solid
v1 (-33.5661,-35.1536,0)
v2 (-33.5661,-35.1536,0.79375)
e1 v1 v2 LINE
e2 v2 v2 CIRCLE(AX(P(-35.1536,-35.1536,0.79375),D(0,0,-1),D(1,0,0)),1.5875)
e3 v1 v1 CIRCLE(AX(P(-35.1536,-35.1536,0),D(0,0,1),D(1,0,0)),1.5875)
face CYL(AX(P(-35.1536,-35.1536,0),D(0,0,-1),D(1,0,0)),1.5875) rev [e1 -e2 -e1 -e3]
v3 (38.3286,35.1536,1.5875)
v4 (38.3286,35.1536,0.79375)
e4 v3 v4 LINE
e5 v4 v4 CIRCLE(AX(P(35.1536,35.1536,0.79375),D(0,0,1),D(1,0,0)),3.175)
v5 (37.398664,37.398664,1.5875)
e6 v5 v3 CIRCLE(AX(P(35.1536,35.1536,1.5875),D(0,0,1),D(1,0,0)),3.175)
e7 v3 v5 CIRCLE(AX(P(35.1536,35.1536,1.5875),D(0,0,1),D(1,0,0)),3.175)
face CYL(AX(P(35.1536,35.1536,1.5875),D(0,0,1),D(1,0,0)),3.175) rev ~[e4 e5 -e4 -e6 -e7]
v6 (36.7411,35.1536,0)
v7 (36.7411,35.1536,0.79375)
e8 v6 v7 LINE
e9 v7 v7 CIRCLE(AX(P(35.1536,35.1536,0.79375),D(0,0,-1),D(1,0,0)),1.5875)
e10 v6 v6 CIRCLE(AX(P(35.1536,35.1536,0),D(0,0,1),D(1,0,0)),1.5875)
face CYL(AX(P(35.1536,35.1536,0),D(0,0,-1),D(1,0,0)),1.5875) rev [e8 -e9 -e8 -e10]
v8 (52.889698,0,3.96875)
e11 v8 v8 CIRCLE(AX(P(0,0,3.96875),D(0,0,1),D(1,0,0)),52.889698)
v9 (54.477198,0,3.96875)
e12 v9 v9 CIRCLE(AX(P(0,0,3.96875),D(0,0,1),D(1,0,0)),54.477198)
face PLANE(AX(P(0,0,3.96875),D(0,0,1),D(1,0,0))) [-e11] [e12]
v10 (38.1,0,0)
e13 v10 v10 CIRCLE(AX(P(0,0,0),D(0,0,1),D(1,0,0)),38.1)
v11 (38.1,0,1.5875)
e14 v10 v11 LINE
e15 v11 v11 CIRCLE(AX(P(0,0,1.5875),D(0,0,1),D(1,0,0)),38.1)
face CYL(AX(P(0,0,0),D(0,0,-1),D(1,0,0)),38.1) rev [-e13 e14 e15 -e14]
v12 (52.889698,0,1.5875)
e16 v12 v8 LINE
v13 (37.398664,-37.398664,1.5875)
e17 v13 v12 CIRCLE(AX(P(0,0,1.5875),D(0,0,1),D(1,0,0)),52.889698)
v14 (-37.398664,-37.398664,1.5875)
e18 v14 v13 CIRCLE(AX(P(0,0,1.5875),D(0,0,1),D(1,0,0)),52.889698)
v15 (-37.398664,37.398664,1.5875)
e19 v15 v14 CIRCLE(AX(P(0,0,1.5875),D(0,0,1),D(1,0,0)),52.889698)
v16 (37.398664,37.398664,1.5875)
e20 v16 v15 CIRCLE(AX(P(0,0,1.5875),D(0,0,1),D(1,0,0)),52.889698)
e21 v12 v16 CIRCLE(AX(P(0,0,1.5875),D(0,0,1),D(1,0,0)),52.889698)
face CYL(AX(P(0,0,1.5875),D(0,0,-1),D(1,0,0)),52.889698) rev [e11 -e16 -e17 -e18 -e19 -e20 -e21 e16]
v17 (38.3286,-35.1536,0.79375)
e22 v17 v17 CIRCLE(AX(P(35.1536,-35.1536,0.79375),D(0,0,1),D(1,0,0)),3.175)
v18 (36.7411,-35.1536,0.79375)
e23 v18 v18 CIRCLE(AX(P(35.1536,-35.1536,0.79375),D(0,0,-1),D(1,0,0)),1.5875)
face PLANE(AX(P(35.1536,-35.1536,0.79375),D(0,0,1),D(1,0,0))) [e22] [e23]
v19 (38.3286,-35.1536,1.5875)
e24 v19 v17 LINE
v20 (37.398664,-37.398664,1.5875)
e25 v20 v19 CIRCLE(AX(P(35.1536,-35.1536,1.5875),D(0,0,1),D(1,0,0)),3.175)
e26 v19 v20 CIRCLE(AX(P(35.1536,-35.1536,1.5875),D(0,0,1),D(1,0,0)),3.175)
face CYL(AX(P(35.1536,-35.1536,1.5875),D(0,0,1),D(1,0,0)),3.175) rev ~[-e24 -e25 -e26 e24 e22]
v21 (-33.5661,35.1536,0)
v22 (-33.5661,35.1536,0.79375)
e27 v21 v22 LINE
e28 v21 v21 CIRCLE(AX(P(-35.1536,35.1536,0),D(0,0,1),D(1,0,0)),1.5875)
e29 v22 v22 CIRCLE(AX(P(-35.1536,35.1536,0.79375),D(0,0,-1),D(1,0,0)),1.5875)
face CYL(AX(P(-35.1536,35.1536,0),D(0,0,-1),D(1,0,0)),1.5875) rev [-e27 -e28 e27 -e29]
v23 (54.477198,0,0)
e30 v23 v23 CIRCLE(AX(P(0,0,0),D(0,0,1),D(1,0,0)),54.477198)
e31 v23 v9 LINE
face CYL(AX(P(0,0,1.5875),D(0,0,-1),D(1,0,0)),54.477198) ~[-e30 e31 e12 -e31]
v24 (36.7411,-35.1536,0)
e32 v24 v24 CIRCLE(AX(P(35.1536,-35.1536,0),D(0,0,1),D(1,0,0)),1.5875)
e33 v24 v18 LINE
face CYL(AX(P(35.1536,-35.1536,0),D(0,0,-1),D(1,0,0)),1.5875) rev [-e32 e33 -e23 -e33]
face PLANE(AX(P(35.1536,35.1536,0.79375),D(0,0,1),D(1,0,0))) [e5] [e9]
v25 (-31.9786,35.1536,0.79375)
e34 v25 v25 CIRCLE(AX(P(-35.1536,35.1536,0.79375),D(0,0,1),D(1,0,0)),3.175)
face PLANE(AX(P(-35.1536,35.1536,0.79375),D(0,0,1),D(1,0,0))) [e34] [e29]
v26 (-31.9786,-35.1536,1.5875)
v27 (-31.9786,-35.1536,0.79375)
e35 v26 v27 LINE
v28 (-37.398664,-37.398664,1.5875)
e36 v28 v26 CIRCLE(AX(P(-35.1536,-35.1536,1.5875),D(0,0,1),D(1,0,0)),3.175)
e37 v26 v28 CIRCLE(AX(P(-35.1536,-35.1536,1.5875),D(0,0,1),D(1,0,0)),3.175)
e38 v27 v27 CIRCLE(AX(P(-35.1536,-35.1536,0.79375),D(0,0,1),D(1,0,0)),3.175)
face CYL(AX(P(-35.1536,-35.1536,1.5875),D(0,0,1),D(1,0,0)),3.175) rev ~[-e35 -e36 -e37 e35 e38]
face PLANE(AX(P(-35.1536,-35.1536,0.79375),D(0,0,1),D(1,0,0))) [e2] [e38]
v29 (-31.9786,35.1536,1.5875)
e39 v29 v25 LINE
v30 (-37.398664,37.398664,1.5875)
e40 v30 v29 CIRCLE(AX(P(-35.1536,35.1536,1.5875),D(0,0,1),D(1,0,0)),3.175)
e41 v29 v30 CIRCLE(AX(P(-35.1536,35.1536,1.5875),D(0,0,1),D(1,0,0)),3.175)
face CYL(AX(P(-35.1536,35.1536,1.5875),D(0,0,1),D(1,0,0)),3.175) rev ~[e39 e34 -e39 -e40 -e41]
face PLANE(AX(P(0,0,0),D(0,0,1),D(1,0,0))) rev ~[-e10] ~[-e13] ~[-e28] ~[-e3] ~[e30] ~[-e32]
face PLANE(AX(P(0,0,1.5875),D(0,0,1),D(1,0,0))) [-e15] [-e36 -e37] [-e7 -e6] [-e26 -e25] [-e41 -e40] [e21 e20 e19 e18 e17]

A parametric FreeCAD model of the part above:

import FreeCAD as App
import Part
import Sketcher
from FreeCAD import Vector
Q = App.Units.Quantity

doc = App.newDocument("Part")
params = doc.addObject("Spreadsheet::Sheet", "Params")
for row, (alias, value) in enumerate([
    ("sketch1_diameter", "3 in"),
    ("sketch1_diameter2", "0.125 in"),
    ("pad1_length", "0.0625 in"),
    ("pad2_length", "0.09375 in"),
    ("sketch3_diameter", "0.25 in"),
    ("pocket1_length", "0.03125 in"),
], start=1):
    params.set(f"A{row}", alias)
    params.set(f"B{row}", "=" + value)
    params.setAlias(f"B{row}", alias)

body = doc.addObject("PartDesign::Body", "Body")

# Sketch on XY plane
sketch1 = body.newObject("Sketcher::SketchObject", "Sketch")
sketch1.AttachmentSupport = (doc.getObject("XY_Plane"), [""])
sketch1.MapMode = "FlatFace"
sketch1.addGeometry(Part.Circle(Vector(0, 0, 0), Vector(0, 0, 1), 54.5), False)
sketch1.addGeometry(Part.Circle(Vector(-35.2, -35.2, 0), Vector(0, 0, 1), 1.6), False)
sketch1.addGeometry(Part.Circle(Vector(35.2, -35.2, 0), Vector(0, 0, 1), 1.6), False)
sketch1.addGeometry(Part.Circle(Vector(-35.2, 35.2, 0), Vector(0, 0, 1), 1.6), False)
sketch1.addGeometry(Part.Circle(Vector(0, 0, 0), Vector(0, 0, 1), 38.1), False)
sketch1.addGeometry(Part.Circle(Vector(35.2, 35.2, 0), Vector(0, 0, 1), 1.6), False)
sketch1.addConstraint(Sketcher.Constraint("Coincident", 0, 3, -1, 1))
sketch1.addConstraint(Sketcher.Constraint("Coincident", 4, 3, -1, 1))
sketch1.addConstraint(Sketcher.Constraint("Equal", 1, 2))
sketch1.addConstraint(Sketcher.Constraint("Equal", 2, 3))
sketch1.addConstraint(Sketcher.Constraint("Equal", 3, 5))
sketch1.addConstraint(Sketcher.Constraint("Symmetric", 2, 3, 3, 3, -1, 1))
sketch1.addConstraint(Sketcher.Constraint("Symmetric", 1, 3, 5, 3, -1, 1))
sketch1.addConstraint(Sketcher.Constraint("Symmetric", 1, 3, 2, 3, -2))
sketch1.addConstraint(Sketcher.Constraint("Diameter", 4, Q("3 in")))
sketch1.addConstraint(Sketcher.Constraint("Diameter", 1, Q("0.125 in")))
sketch1.addConstraint(Sketcher.Constraint("DistanceX", 1, 3, -1, 1, Q("1.384 in")))
sketch1.addConstraint(Sketcher.Constraint("DistanceY", 1, 3, -1, 1, Q("1.384 in")))
sketch1.addConstraint(Sketcher.Constraint("Diameter", 0, Q("108.954396 mm")))
sketch1.setExpression("Constraints[8]", "Params.sketch1_diameter")
sketch1.setExpression("Constraints[9]", "Params.sketch1_diameter2")
pad1 = body.newObject("PartDesign::Pad", "Pad")
pad1.Profile = sketch1
pad1.setExpression("Length", "Params.pad1_length")

# Sketch on XY plane
sketch2 = body.newObject("Sketcher::SketchObject", "Sketch001")
sketch2.AttachmentSupport = (doc.getObject("XY_Plane"), [""])
sketch2.MapMode = "FlatFace"
sketch2.AttachmentOffset = App.Placement(Vector(0, 0, 0.0625 * 25.4), App.Rotation())
sketch2.addGeometry(Part.Circle(Vector(0, 0, 0), Vector(0, 0, 1), 54), False)
sketch2.addGeometry(Part.Circle(Vector(0, 0, 0), Vector(0, 0, 1), 53), False)
sketch2.addConstraint(Sketcher.Constraint("Coincident", 0, 3, -1, 1))
sketch2.addConstraint(Sketcher.Constraint("Coincident", 1, 3, -1, 1))
sketch2.addConstraint(Sketcher.Constraint("Diameter", 0, Q("108.954396 mm")))
sketch2.addConstraint(Sketcher.Constraint("Diameter", 1, Q("105.779396 mm")))
pad2 = body.newObject("PartDesign::Pad", "Pad001")
pad2.Profile = sketch2
pad2.setExpression("Length", "Params.pad2_length")

# Sketch on XY plane
sketch3 = body.newObject("Sketcher::SketchObject", "Sketch002")
sketch3.AttachmentSupport = (doc.getObject("XY_Plane"), [""])
sketch3.MapMode = "FlatFace"
sketch3.AttachmentOffset = App.Placement(Vector(0, 0, 0.0625 * 25.4), App.Rotation())
sketch3.addGeometry(Part.Circle(Vector(-35.2, 35.2, 0), Vector(0, 0, 1), 3.2), False)
sketch3.addGeometry(Part.Circle(Vector(35.2, 35.2, 0), Vector(0, 0, 1), 3.2), False)
sketch3.addGeometry(Part.Circle(Vector(35.2, -35.2, 0), Vector(0, 0, 1), 3.2), False)
sketch3.addGeometry(Part.Circle(Vector(-35.2, -35.2, 0), Vector(0, 0, 1), 3.2), False)
sketch3.addConstraint(Sketcher.Constraint("Equal", 0, 1))
sketch3.addConstraint(Sketcher.Constraint("Equal", 1, 2))
sketch3.addConstraint(Sketcher.Constraint("Equal", 2, 3))
sketch3.addConstraint(Sketcher.Constraint("Symmetric", 0, 3, 2, 3, -1, 1))
sketch3.addConstraint(Sketcher.Constraint("Symmetric", 1, 3, 3, 3, -1, 1))
sketch3.addConstraint(Sketcher.Constraint("Symmetric", 0, 3, 1, 3, -2))
sketch3.addConstraint(Sketcher.Constraint("Diameter", 0, Q("0.25 in")))
sketch3.addConstraint(Sketcher.Constraint("DistanceX", 0, 3, -1, 1, Q("1.384 in")))
sketch3.addConstraint(Sketcher.Constraint("DistanceY", -1, 1, 0, 3, Q("1.384 in")))
sketch3.setExpression("Constraints[6]", "Params.sketch3_diameter")
pocket1 = body.newObject("PartDesign::Pocket", "Pocket")
pocket1.Profile = sketch3
pocket1.setExpression("Length", "Params.pocket1_length")

doc.recompute()
